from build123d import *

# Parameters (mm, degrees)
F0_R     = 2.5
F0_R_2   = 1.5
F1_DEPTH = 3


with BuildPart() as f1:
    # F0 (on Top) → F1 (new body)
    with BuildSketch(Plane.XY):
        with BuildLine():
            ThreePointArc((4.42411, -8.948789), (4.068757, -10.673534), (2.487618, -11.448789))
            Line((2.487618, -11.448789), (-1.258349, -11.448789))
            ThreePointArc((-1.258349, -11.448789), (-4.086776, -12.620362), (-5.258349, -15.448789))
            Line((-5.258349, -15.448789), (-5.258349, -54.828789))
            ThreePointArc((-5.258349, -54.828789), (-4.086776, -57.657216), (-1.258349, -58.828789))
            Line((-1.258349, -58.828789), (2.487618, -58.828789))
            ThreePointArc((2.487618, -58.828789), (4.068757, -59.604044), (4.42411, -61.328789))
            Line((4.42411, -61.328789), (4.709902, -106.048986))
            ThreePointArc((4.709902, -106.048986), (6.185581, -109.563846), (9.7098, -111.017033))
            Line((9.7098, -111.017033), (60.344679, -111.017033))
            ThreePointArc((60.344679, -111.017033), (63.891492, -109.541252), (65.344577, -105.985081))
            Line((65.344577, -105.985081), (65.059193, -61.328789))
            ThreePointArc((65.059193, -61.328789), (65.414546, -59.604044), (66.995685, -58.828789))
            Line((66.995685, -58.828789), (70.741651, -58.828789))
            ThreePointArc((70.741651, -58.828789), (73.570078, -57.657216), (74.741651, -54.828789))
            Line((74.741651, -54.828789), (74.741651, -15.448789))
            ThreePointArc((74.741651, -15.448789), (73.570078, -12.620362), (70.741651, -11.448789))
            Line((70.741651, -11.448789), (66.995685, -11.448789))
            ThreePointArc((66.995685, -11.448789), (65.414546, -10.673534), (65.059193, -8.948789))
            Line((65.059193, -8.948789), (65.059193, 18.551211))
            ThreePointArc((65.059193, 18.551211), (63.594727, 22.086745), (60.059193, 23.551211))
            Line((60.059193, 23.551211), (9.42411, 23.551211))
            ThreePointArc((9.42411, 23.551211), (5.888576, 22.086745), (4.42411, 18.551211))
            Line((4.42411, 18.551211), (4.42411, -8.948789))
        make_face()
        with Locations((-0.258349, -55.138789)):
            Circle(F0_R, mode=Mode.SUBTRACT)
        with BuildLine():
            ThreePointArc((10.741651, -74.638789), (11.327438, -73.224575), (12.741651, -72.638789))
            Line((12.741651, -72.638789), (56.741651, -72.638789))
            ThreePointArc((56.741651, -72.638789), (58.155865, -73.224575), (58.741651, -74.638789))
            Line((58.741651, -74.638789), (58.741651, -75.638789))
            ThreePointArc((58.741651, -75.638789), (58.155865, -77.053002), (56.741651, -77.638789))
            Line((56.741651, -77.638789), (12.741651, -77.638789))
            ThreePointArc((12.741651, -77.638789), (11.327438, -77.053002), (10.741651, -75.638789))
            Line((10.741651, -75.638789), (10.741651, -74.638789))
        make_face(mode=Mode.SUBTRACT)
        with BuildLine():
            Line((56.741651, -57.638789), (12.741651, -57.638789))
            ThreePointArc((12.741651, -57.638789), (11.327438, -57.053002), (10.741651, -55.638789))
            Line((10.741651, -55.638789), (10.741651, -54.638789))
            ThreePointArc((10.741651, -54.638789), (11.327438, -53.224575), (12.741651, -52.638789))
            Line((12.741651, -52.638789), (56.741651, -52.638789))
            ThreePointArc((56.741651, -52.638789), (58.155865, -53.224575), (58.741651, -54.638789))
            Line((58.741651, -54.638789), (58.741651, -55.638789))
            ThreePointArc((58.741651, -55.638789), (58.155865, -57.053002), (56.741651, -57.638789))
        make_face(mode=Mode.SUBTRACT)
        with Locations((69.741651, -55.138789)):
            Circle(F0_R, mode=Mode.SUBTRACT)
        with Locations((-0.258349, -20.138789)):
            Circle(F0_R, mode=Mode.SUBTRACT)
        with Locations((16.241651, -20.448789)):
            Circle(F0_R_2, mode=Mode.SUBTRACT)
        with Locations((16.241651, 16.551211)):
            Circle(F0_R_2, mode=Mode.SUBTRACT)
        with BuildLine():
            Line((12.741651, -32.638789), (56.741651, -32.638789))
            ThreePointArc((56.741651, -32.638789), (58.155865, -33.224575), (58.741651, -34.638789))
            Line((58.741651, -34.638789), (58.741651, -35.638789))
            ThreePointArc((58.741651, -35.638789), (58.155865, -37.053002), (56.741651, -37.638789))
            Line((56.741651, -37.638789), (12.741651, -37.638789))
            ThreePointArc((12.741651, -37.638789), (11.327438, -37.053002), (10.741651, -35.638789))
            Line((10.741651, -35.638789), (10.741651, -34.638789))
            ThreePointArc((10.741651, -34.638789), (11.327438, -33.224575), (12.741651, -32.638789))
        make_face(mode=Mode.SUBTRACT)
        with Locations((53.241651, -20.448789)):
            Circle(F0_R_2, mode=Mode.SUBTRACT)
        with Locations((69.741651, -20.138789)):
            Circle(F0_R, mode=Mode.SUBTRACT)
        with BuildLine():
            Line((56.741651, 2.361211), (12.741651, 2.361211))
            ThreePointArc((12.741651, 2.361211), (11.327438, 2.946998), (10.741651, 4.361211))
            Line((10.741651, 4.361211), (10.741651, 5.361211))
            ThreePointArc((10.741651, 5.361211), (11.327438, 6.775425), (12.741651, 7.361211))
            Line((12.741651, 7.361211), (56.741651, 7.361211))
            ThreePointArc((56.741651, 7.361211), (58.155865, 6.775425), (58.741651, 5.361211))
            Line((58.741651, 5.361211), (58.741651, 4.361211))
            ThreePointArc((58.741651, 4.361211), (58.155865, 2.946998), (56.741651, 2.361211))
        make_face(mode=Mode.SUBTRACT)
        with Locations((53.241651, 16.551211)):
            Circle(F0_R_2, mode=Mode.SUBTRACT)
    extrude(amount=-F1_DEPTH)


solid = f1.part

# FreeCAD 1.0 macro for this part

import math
import FreeCAD as App
import Part
import Sketcher

V = App.Vector
Q = App.Units.Quantity

doc = App.newDocument("Part")
params = doc.addObject("Spreadsheet::Sheet", "Params")
for row, (alias, value) in enumerate([
    ("sketch1_diameter", "5 mm"),
    ("sketch1_diameter2", "3 mm"),
    ("sketch1_radius", "2 mm"),
    ("sketch1_radius2", "4 mm"),
    ("sketch1_radius3", "5 mm"),
    ("pad1_length", "3 mm"),
], start=1):
    params.set(f"A{row}", alias)
    params.set(f"B{row}", "=" + value)
    params.setAlias(f"B{row}", alias)

body = doc.addObject("PartDesign::Body", "Body")

# Sketch on XY plane
sketch1 = body.newObject("Sketcher::SketchObject", "Sketch")
sketch1.AttachmentSupport = (doc.getObject("XY_Plane"), [""])
sketch1.MapMode = "FlatFace"
sketch1.addGeometry(Part.ArcOfCircle(Part.Circle(V(2.487618, -9.448789, 0), V(0, 0, 1), 2), math.radians(-90.000007), math.radians(14.47751)), False)
sketch1.addGeometry(Part.LineSegment(V(2.487618, -11.448789, 0), V(-1.258349, -11.448789, 0)), False)
sketch1.addGeometry(Part.ArcOfCircle(Part.Circle(V(-1.258349, -15.448789, 0), V(0, 0, 1), 4), math.radians(90.000006), math.radians(179.999994)), False)
sketch1.addGeometry(Part.LineSegment(V(-5.258349, -15.448789, 0), V(-5.258349, -54.828789, 0)), False)
sketch1.addGeometry(Part.ArcOfCircle(Part.Circle(V(-1.258349, -54.828789, 0), V(0, 0, 1), 4), math.radians(-179.999994), math.radians(-90.000006)), False)
sketch1.addGeometry(Part.LineSegment(V(-1.258349, -58.828789, 0), V(2.487618, -58.828789, 0)), False)
sketch1.addGeometry(Part.ArcOfCircle(Part.Circle(V(2.487618, -60.828789, 0), V(0, 0, 1), 2), math.radians(-14.47751), math.radians(90.000007)), False)
sketch1.addGeometry(Part.LineSegment(V(4.42411, -61.328789, 0), V(4.709902, -106.048986, 0)), False)
sketch1.addGeometry(Part.ArcOfCircle(Part.Circle(V(9.7098, -106.017033, 0), V(0, 0, 1), 5), math.radians(-179.633847), math.radians(-89.999995)), False)
sketch1.addGeometry(Part.LineSegment(V(9.7098, -111.017033, 0), V(60.344679, -111.017033, 0)), False)
sketch1.addGeometry(Part.ArcOfCircle(Part.Circle(V(60.344679, -106.017033, 0), V(0, 0, 1), 5), math.radians(-90.000005), math.radians(0.366149)), False)
sketch1.addGeometry(Part.LineSegment(V(65.344577, -105.985081, 0), V(65.059193, -61.328789, 0)), False)
sketch1.addGeometry(Part.ArcOfCircle(Part.Circle(V(66.995685, -60.828789, 0), V(0, 0, 1), 2), math.radians(89.999993), math.radians(194.47751)), False)
sketch1.addGeometry(Part.LineSegment(V(66.995685, -58.828789, 0), V(70.741651, -58.828789, 0)), False)
sketch1.addGeometry(Part.ArcOfCircle(Part.Circle(V(70.741651, -54.828789, 0), V(0, 0, 1), 4), math.radians(-89.999994), math.radians(-0.000006)), False)
sketch1.addGeometry(Part.LineSegment(V(74.741651, -54.828789, 0), V(74.741651, -15.448789, 0)), False)
sketch1.addGeometry(Part.ArcOfCircle(Part.Circle(V(70.741651, -15.448789, 0), V(0, 0, 1), 4), math.radians(0.000006), math.radians(89.999994)), False)
sketch1.addGeometry(Part.LineSegment(V(70.741651, -11.448789, 0), V(66.995685, -11.448789, 0)), False)
sketch1.addGeometry(Part.ArcOfCircle(Part.Circle(V(66.995685, -9.448789, 0), V(0, 0, 1), 2), math.radians(165.52249), math.radians(270.000007)), False)
sketch1.addGeometry(Part.LineSegment(V(65.059193, -8.948789, 0), V(65.059193, 18.551211, 0)), False)
sketch1.addGeometry(Part.ArcOfCircle(Part.Circle(V(60.059193, 18.551211, 0), V(0, 0, 1), 5), math.radians(-0.000004), math.radians(90.000004)), False)
sketch1.addGeometry(Part.LineSegment(V(60.059193, 23.551211, 0), V(9.42411, 23.551211, 0)), False)
sketch1.addGeometry(Part.ArcOfCircle(Part.Circle(V(9.42411, 18.551211, 0), V(0, 0, 1), 5), math.radians(89.999996), math.radians(180.000004)), False)
sketch1.addGeometry(Part.LineSegment(V(4.42411, 18.551211, 0), V(4.42411, -8.948789, 0)), False)
sketch1.addGeometry(Part.Circle(V(-0.258349, -55.138789, 0), V(0, 0, 1), 2.5), False)
sketch1.addGeometry(Part.LineSegment(V(10.741651, -75.638789, 0), V(10.741651, -74.638789, 0)), False)
sketch1.addGeometry(Part.ArcOfCircle(Part.Circle(V(12.741651, -74.638789, 0), V(0, 0, 1), 2), math.radians(90.000006), math.radians(179.999994)), False)
sketch1.addGeometry(Part.LineSegment(V(12.741651, -72.638789, 0), V(56.741651, -72.638789, 0)), False)
sketch1.addGeometry(Part.ArcOfCircle(Part.Circle(V(56.741652, -74.638788, 0), V(0, 0, 1), 1.999999), math.radians(-0.000043), math.radians(90.000043)), False)
sketch1.addGeometry(Part.LineSegment(V(58.741651, -74.638789, 0), V(58.741651, -75.638789, 0)), False)
sketch1.addGeometry(Part.ArcOfCircle(Part.Circle(V(56.741651, -75.638789, 0), V(0, 0, 1), 2), math.radians(-89.999994), math.radians(-0.000006)), False)
sketch1.addGeometry(Part.LineSegment(V(56.741651, -77.638789, 0), V(12.741651, -77.638789, 0)), False)
sketch1.addGeometry(Part.ArcOfCircle(Part.Circle(V(12.741653, -75.638787, 0), V(0, 0, 1), 2.000002), math.radians(-179.999945), math.radians(-90.000055)), False)
sketch1.addGeometry(Part.ArcOfCircle(Part.Circle(V(56.741651, -55.638789, 0), V(0, 0, 1), 2), math.radians(-89.999994), math.radians(-0.000006)), False)
sketch1.addGeometry(Part.LineSegment(V(56.741651, -57.638789, 0), V(12.741651, -57.638789, 0)), False)
sketch1.addGeometry(Part.ArcOfCircle(Part.Circle(V(12.741653, -55.638787, 0), V(0, 0, 1), 2.000002), math.radians(-179.999945), math.radians(-90.000055)), False)
sketch1.addGeometry(Part.LineSegment(V(10.741651, -55.638789, 0), V(10.741651, -54.638789, 0)), False)
sketch1.addGeometry(Part.ArcOfCircle(Part.Circle(V(12.741651, -54.638789, 0), V(0, 0, 1), 2), math.radians(90.000006), math.radians(179.999994)), False)
sketch1.addGeometry(Part.LineSegment(V(12.741651, -52.638789, 0), V(56.741651, -52.638789, 0)), False)
sketch1.addGeometry(Part.ArcOfCircle(Part.Circle(V(56.741652, -54.638788, 0), V(0, 0, 1), 1.999999), math.radians(-0.000043), math.radians(90.000043)), False)
sketch1.addGeometry(Part.LineSegment(V(58.741651, -54.638789, 0), V(58.741651, -55.638789, 0)), False)
sketch1.addGeometry(Part.Circle(V(69.741651, -55.138789, 0), V(0, 0, 1), 2.5), False)
sketch1.addGeometry(Part.ArcOfCircle(Part.Circle(V(12.741651, -34.638789, 0), V(0, 0, 1), 2), math.radians(90.000006), math.radians(179.999994)), False)
sketch1.addGeometry(Part.LineSegment(V(12.741651, -32.638789, 0), V(56.741651, -32.638789, 0)), False)
sketch1.addGeometry(Part.ArcOfCircle(Part.Circle(V(56.741652, -34.638788, 0), V(0, 0, 1), 1.999999), math.radians(-0.000043), math.radians(90.000043)), False)
sketch1.addGeometry(Part.LineSegment(V(58.741651, -34.638789, 0), V(58.741651, -35.638789, 0)), False)
sketch1.addGeometry(Part.ArcOfCircle(Part.Circle(V(56.741651, -35.638789, 0), V(0, 0, 1), 2), math.radians(-89.999994), math.radians(-0.000006)), False)
sketch1.addGeometry(Part.LineSegment(V(56.741651, -37.638789, 0), V(12.741651, -37.638789, 0)), False)
sketch1.addGeometry(Part.ArcOfCircle(Part.Circle(V(12.741653, -35.638787, 0), V(0, 0, 1), 2.000002), math.radians(-179.999945), math.radians(-90.000055)), False)
sketch1.addGeometry(Part.LineSegment(V(10.741651, -35.638789, 0), V(10.741651, -34.638789, 0)), False)
sketch1.addGeometry(Part.Circle(V(-0.258349, -20.138789, 0), V(0, 0, 1), 2.5), False)
sketch1.addGeometry(Part.Circle(V(16.241651, -20.448789, 0), V(0, 0, 1), 1.5), False)
sketch1.addGeometry(Part.Circle(V(16.241651, 16.551211, 0), V(0, 0, 1), 1.5), False)
sketch1.addGeometry(Part.Circle(V(53.241651, -20.448789, 0), V(0, 0, 1), 1.5), False)
sketch1.addGeometry(Part.Circle(V(69.741651, -20.138789, 0), V(0, 0, 1), 2.5), False)
sketch1.addGeometry(Part.ArcOfCircle(Part.Circle(V(56.741651, 4.361211, 0), V(0, 0, 1), 2), math.radians(-89.999994), math.radians(-0.000006)), False)
sketch1.addGeometry(Part.LineSegment(V(56.741651, 2.361211, 0), V(12.741651, 2.361211, 0)), False)
sketch1.addGeometry(Part.ArcOfCircle(Part.Circle(V(12.741653, 4.361213, 0), V(0, 0, 1), 2.000002), math.radians(-179.999945), math.radians(-90.000055)), False)
sketch1.addGeometry(Part.LineSegment(V(10.741651, 4.361211, 0), V(10.741651, 5.361211, 0)), False)
sketch1.addGeometry(Part.ArcOfCircle(Part.Circle(V(12.741651, 5.361211, 0), V(0, 0, 1), 2), math.radians(90.000006), math.radians(179.999994)), False)
sketch1.addGeometry(Part.LineSegment(V(12.741651, 7.361211, 0), V(56.741651, 7.361211, 0)), False)
sketch1.addGeometry(Part.ArcOfCircle(Part.Circle(V(56.741652, 5.361212, 0), V(0, 0, 1), 1.999999), math.radians(-0.000043), math.radians(90.000043)), False)
sketch1.addGeometry(Part.LineSegment(V(58.741651, 5.361211, 0), V(58.741651, 4.361211, 0)), False)
sketch1.addGeometry(Part.Circle(V(53.241651, 16.551211, 0), V(0, 0, 1), 1.5), False)
sketch1.addConstraint(Sketcher.Constraint("Tangent", 0, 1, 1, 1))
sketch1.addConstraint(Sketcher.Constraint("Tangent", 1, 2, 2, 1))
sketch1.addConstraint(Sketcher.Constraint("Tangent", 2, 2, 3, 1))
sketch1.addConstraint(Sketcher.Constraint("Tangent", 3, 2, 4, 1))
sketch1.addConstraint(Sketcher.Constraint("Tangent", 4, 2, 5, 1))
sketch1.addConstraint(Sketcher.Constraint("Tangent", 5, 2, 6, 2))
sketch1.addConstraint(Sketcher.Constraint("Coincident", 6, 1, 7, 1))
sketch1.addConstraint(Sketcher.Constraint("Tangent", 7, 2, 8, 1))
sketch1.addConstraint(Sketcher.Constraint("Tangent", 8, 2, 9, 1))
sketch1.addConstraint(Sketcher.Constraint("Tangent", 9, 2, 10, 1))
sketch1.addConstraint(Sketcher.Constraint("Tangent", 10, 2, 11, 1))
sketch1.addConstraint(Sketcher.Constraint("Coincident", 11, 2, 12, 2))
sketch1.addConstraint(Sketcher.Constraint("Tangent", 12, 1, 13, 1))
sketch1.addConstraint(Sketcher.Constraint("Tangent", 13, 2, 14, 1))
sketch1.addConstraint(Sketcher.Constraint("Tangent", 14, 2, 15, 1))
sketch1.addConstraint(Sketcher.Constraint("Tangent", 15, 2, 16, 1))
sketch1.addConstraint(Sketcher.Constraint("Tangent", 16, 2, 17, 1))
sketch1.addConstraint(Sketcher.Constraint("Tangent", 17, 2, 18, 2))
sketch1.addConstraint(Sketcher.Constraint("Coincident", 18, 1, 19, 1))
sketch1.addConstraint(Sketcher.Constraint("Tangent", 19, 2, 20, 1))
sketch1.addConstraint(Sketcher.Constraint("Tangent", 20, 2, 21, 1))
sketch1.addConstraint(Sketcher.Constraint("Tangent", 21, 2, 22, 1))
sketch1.addConstraint(Sketcher.Constraint("Tangent", 22, 2, 23, 1))
sketch1.addConstraint(Sketcher.Constraint("Coincident", 23, 2, 0, 2))
sketch1.addConstraint(Sketcher.Constraint("Tangent", 25, 2, 26, 2))
sketch1.addConstraint(Sketcher.Constraint("Tangent", 26, 1, 27, 1))
sketch1.addConstraint(Sketcher.Constraint("Tangent", 27, 2, 28, 2))
sketch1.addConstraint(Sketcher.Constraint("Tangent", 28, 1, 29, 1))
sketch1.addConstraint(Sketcher.Constraint("Tangent", 29, 2, 30, 2))
sketch1.addConstraint(Sketcher.Constraint("Tangent", 30, 1, 31, 1))
sketch1.addConstraint(Sketcher.Constraint("Tangent", 31, 2, 32, 2))
sketch1.addConstraint(Sketcher.Constraint("Tangent", 32, 1, 25, 1))
sketch1.addConstraint(Sketcher.Constraint("Tangent", 33, 1, 34, 1))
sketch1.addConstraint(Sketcher.Constraint("Tangent", 34, 2, 35, 2))
sketch1.addConstraint(Sketcher.Constraint("Tangent", 35, 1, 36, 1))
sketch1.addConstraint(Sketcher.Constraint("Tangent", 36, 2, 37, 2))
sketch1.addConstraint(Sketcher.Constraint("Tangent", 37, 1, 38, 1))
sketch1.addConstraint(Sketcher.Constraint("Tangent", 38, 2, 39, 2))
sketch1.addConstraint(Sketcher.Constraint("Tangent", 39, 1, 40, 1))
sketch1.addConstraint(Sketcher.Constraint("Tangent", 40, 2, 33, 2))
sketch1.addConstraint(Sketcher.Constraint("Tangent", 42, 1, 43, 1))
sketch1.addConstraint(Sketcher.Constraint("Tangent", 43, 2, 44, 2))
sketch1.addConstraint(Sketcher.Constraint("Tangent", 44, 1, 45, 1))
sketch1.addConstraint(Sketcher.Constraint("Tangent", 45, 2, 46, 2))
sketch1.addConstraint(Sketcher.Constraint("Tangent", 46, 1, 47, 1))
sketch1.addConstraint(Sketcher.Constraint("Tangent", 47, 2, 48, 2))
sketch1.addConstraint(Sketcher.Constraint("Tangent", 48, 1, 49, 1))
sketch1.addConstraint(Sketcher.Constraint("Tangent", 49, 2, 42, 2))
sketch1.addConstraint(Sketcher.Constraint("Tangent", 55, 1, 56, 1))
sketch1.addConstraint(Sketcher.Constraint("Tangent", 56, 2, 57, 2))
sketch1.addConstraint(Sketcher.Constraint("Tangent", 57, 1, 58, 1))
sketch1.addConstraint(Sketcher.Constraint("Tangent", 58, 2, 59, 2))
sketch1.addConstraint(Sketcher.Constraint("Tangent", 59, 1, 60, 1))
sketch1.addConstraint(Sketcher.Constraint("Tangent", 60, 2, 61, 2))
sketch1.addConstraint(Sketcher.Constraint("Tangent", 61, 1, 62, 1))
sketch1.addConstraint(Sketcher.Constraint("Tangent", 62, 2, 55, 2))
sketch1.addConstraint(Sketcher.Constraint("Horizontal", 1))
sketch1.addConstraint(Sketcher.Constraint("Vertical", 3))
sketch1.addConstraint(Sketcher.Constraint("Horizontal", 5))
sketch1.addConstraint(Sketcher.Constraint("Horizontal", 9))
sketch1.addConstraint(Sketcher.Constraint("Horizontal", 13))
sketch1.addConstraint(Sketcher.Constraint("Vertical", 15))
sketch1.addConstraint(Sketcher.Constraint("Horizontal", 17))
sketch1.addConstraint(Sketcher.Constraint("Vertical", 19))
sketch1.addConstraint(Sketcher.Constraint("Horizontal", 21))
sketch1.addConstraint(Sketcher.Constraint("Vertical", 23))
sketch1.addConstraint(Sketcher.Constraint("Vertical", 25))
sketch1.addConstraint(Sketcher.Constraint("Horizontal", 27))
sketch1.addConstraint(Sketcher.Constraint("Vertical", 29))
sketch1.addConstraint(Sketcher.Constraint("Horizontal", 31))
sketch1.addConstraint(Sketcher.Constraint("Horizontal", 34))
sketch1.addConstraint(Sketcher.Constraint("Vertical", 36))
sketch1.addConstraint(Sketcher.Constraint("Horizontal", 38))
sketch1.addConstraint(Sketcher.Constraint("Vertical", 40))
sketch1.addConstraint(Sketcher.Constraint("Horizontal", 43))
sketch1.addConstraint(Sketcher.Constraint("Vertical", 45))
sketch1.addConstraint(Sketcher.Constraint("Horizontal", 47))
sketch1.addConstraint(Sketcher.Constraint("Vertical", 49))
sketch1.addConstraint(Sketcher.Constraint("Horizontal", 56))
sketch1.addConstraint(Sketcher.Constraint("Vertical", 58))
sketch1.addConstraint(Sketcher.Constraint("Horizontal", 60))
sketch1.addConstraint(Sketcher.Constraint("Vertical", 62))
sketch1.addConstraint(Sketcher.Constraint("Equal", 2, 4))
sketch1.addConstraint(Sketcher.Constraint("Equal", 0, 6))
sketch1.addConstraint(Sketcher.Constraint("Equal", 8, 10))
sketch1.addConstraint(Sketcher.Constraint("Equal", 6, 12))
sketch1.addConstraint(Sketcher.Constraint("Equal", 4, 14))
sketch1.addConstraint(Sketcher.Constraint("Equal", 14, 16))
sketch1.addConstraint(Sketcher.Constraint("Equal", 12, 18))
sketch1.addConstraint(Sketcher.Constraint("Equal", 10, 20))
sketch1.addConstraint(Sketcher.Constraint("Equal", 20, 22))
sketch1.addConstraint(Sketcher.Constraint("Equal", 18, 26))
sketch1.addConstraint(Sketcher.Constraint("Equal", 26, 28))
sketch1.addConstraint(Sketcher.Constraint("Equal", 28, 30))
sketch1.addConstraint(Sketcher.Constraint("Equal", 30, 32))
sketch1.addConstraint(Sketcher.Constraint("Equal", 32, 33))
sketch1.addConstraint(Sketcher.Constraint("Equal", 33, 35))
sketch1.addConstraint(Sketcher.Constraint("Equal", 35, 37))
sketch1.addConstraint(Sketcher.Constraint("Equal", 37, 39))
sketch1.addConstraint(Sketcher.Constraint("Equal", 24, 41))
sketch1.addConstraint(Sketcher.Constraint("Equal", 39, 42))
sketch1.addConstraint(Sketcher.Constraint("Equal", 42, 44))
sketch1.addConstraint(Sketcher.Constraint("Equal", 44, 46))
sketch1.addConstraint(Sketcher.Constraint("Equal", 46, 48))
sketch1.addConstraint(Sketcher.Constraint("Equal", 41, 50))
sketch1.addConstraint(Sketcher.Constraint("Equal", 51, 52))
sketch1.addConstraint(Sketcher.Constraint("Equal", 52, 53))
sketch1.addConstraint(Sketcher.Constraint("Equal", 50, 54))
sketch1.addConstraint(Sketcher.Constraint("Equal", 48, 55))
sketch1.addConstraint(Sketcher.Constraint("Equal", 55, 57))
sketch1.addConstraint(Sketcher.Constraint("Equal", 57, 59))
sketch1.addConstraint(Sketcher.Constraint("Equal", 59, 61))
sketch1.addConstraint(Sketcher.Constraint("Equal", 53, 63))
sketch1.addConstraint(Sketcher.Constraint("Parallel", 7, 11))
sketch1.addConstraint(Sketcher.Constraint("Horizontal", 6, 3, 12, 3))
sketch1.addConstraint(Sketcher.Constraint("Horizontal", 2, 3, 16, 3))
sketch1.addConstraint(Sketcher.Constraint("Horizontal", 24, 3, 41, 3))
sketch1.addConstraint(Sketcher.Constraint("Horizontal", 51, 3, 53, 3))
sketch1.addConstraint(Sketcher.Constraint("Horizontal", 50, 3, 54, 3))
sketch1.addConstraint(Sketcher.Constraint("Horizontal", 52, 3, 63, 3))
sketch1.addConstraint(Sketcher.Constraint("Horizontal", 6, 1, 11, 2))
sketch1.addConstraint(Sketcher.Constraint("Horizontal", 18, 1, 23, 2))
sketch1.addConstraint(Sketcher.Constraint("Vertical", 0, 3, 6, 3))
sketch1.addConstraint(Sketcher.Constraint("Vertical", 12, 3, 18, 3))
sketch1.addConstraint(Sketcher.Constraint("Vertical", 30, 3, 33, 3))
sketch1.addConstraint(Sketcher.Constraint("Vertical", 32, 3, 35, 3))
sketch1.addConstraint(Sketcher.Constraint("Vertical", 37, 3, 42, 3))
sketch1.addConstraint(Sketcher.Constraint("Vertical", 39, 3, 44, 3))
sketch1.addConstraint(Sketcher.Constraint("Vertical", 24, 3, 50, 3))
sketch1.addConstraint(Sketcher.Constraint("Vertical", 51, 3, 52, 3))
sketch1.addConstraint(Sketcher.Constraint("Vertical", 41, 3, 54, 3))
sketch1.addConstraint(Sketcher.Constraint("Vertical", 46, 3, 55, 3))
sketch1.addConstraint(Sketcher.Constraint("Vertical", 48, 3, 57, 3))
sketch1.addConstraint(Sketcher.Constraint("Vertical", 53, 3, 63, 3))
sketch1.addConstraint(Sketcher.Constraint("Vertical", 11, 2, 18, 1))
sketch1.addConstraint(Sketcher.Constraint("Equal", 5, 13))
sketch1.addConstraint(Sketcher.Constraint("Equal", 29, 36))
sketch1.addConstraint(Sketcher.Constraint("Equal", 40, 45))
sketch1.addConstraint(Sketcher.Constraint("Equal", 49, 58))
sketch1.addConstraint(Sketcher.Constraint("Diameter", 24, Q("5 mm")))
sketch1.addConstraint(Sketcher.Constraint("Diameter", 51, Q("3 mm")))
sketch1.addConstraint(Sketcher.Constraint("Radius", 0, Q("2 mm")))
sketch1.addConstraint(Sketcher.Constraint("Radius", 2, Q("4 mm")))
sketch1.addConstraint(Sketcher.Constraint("Radius", 8, Q("5 mm")))
sketch1.addConstraint(Sketcher.Constraint("DistanceX", 27, 1, 27, 2, Q("44 mm")))
sketch1.addConstraint(Sketcher.Constraint("DistanceY", 25, 1, 25, 2, Q("1 mm")))
sketch1.addConstraint(Sketcher.Constraint("DistanceY", 19, 1, 19, 2, Q("27.5 mm")))
sketch1.addConstraint(Sketcher.Constraint("DistanceY", 3, 2, 3, 1, Q("39.38 mm")))
sketch1.addConstraint(Sketcher.Constraint("DistanceX", 9, 1, 9, 2, Q("50.634879 mm")))
sketch1.addConstraint(Sketcher.Constraint("DistanceX", -1, 1, 8, 3, Q("9.7098 mm")))
sketch1.addConstraint(Sketcher.Constraint("Distance", 7, Q("44.72111 mm")))
sketch1.addConstraint(Sketcher.Constraint("DistanceX", 1, 2, 1, 1, Q("3.745967 mm")))
sketch1.addConstraint(Sketcher.Constraint("DistanceX", -1, 1, 0, 3, Q("2.487618 mm")))
sketch1.addConstraint(Sketcher.Constraint("DistanceY", 0, 3, -1, 1, Q("9.448789 mm")))
sketch1.addConstraint(Sketcher.Constraint("DistanceX", -1, 1, 14, 3, Q("70.741651 mm")))
sketch1.addConstraint(Sketcher.Constraint("DistanceX", 24, 3, -1, 1, Q("0.258349 mm")))
sketch1.addConstraint(Sketcher.Constraint("DistanceY", 24, 3, -1, 1, Q("55.138789 mm")))
sketch1.addConstraint(Sketcher.Constraint("DistanceX", -1, 1, 26, 3, Q("12.741651 mm")))
sketch1.addConstraint(Sketcher.Constraint("DistanceY", 26, 3, -1, 1, Q("74.638789 mm")))
sketch1.addConstraint(Sketcher.Constraint("DistanceY", 33, 3, -1, 1, Q("55.638789 mm")))
sketch1.addConstraint(Sketcher.Constraint("DistanceX", -1, 1, 41, 3, Q("69.741651 mm")))
sketch1.addConstraint(Sketcher.Constraint("DistanceY", 42, 3, -1, 1, Q("34.638789 mm")))
sketch1.addConstraint(Sketcher.Constraint("DistanceY", 50, 3, -1, 1, Q("20.138789 mm")))
sketch1.addConstraint(Sketcher.Constraint("DistanceX", -1, 1, 51, 3, Q("16.241651 mm")))
sketch1.addConstraint(Sketcher.Constraint("DistanceY", 51, 3, -1, 1, Q("20.448789 mm")))
sketch1.addConstraint(Sketcher.Constraint("DistanceY", -1, 1, 52, 3, Q("16.551211 mm")))
sketch1.addConstraint(Sketcher.Constraint("DistanceX", -1, 1, 53, 3, Q("53.241651 mm")))
sketch1.addConstraint(Sketcher.Constraint("DistanceY", -1, 1, 55, 3, Q("4.361211 mm")))
sketch1.setExpression("Constraints[139]", "Params.sketch1_diameter")
sketch1.setExpression("Constraints[140]", "Params.sketch1_diameter2")
sketch1.setExpression("Constraints[141]", "Params.sketch1_radius")
sketch1.setExpression("Constraints[142]", "Params.sketch1_radius2")
sketch1.setExpression("Constraints[143]", "Params.sketch1_radius3")
pad1 = body.newObject("PartDesign::Pad", "Pad")
pad1.Profile = sketch1
pad1.setExpression("Length", "Params.pad1_length")
pad1.Reversed = True

doc.recompute()
